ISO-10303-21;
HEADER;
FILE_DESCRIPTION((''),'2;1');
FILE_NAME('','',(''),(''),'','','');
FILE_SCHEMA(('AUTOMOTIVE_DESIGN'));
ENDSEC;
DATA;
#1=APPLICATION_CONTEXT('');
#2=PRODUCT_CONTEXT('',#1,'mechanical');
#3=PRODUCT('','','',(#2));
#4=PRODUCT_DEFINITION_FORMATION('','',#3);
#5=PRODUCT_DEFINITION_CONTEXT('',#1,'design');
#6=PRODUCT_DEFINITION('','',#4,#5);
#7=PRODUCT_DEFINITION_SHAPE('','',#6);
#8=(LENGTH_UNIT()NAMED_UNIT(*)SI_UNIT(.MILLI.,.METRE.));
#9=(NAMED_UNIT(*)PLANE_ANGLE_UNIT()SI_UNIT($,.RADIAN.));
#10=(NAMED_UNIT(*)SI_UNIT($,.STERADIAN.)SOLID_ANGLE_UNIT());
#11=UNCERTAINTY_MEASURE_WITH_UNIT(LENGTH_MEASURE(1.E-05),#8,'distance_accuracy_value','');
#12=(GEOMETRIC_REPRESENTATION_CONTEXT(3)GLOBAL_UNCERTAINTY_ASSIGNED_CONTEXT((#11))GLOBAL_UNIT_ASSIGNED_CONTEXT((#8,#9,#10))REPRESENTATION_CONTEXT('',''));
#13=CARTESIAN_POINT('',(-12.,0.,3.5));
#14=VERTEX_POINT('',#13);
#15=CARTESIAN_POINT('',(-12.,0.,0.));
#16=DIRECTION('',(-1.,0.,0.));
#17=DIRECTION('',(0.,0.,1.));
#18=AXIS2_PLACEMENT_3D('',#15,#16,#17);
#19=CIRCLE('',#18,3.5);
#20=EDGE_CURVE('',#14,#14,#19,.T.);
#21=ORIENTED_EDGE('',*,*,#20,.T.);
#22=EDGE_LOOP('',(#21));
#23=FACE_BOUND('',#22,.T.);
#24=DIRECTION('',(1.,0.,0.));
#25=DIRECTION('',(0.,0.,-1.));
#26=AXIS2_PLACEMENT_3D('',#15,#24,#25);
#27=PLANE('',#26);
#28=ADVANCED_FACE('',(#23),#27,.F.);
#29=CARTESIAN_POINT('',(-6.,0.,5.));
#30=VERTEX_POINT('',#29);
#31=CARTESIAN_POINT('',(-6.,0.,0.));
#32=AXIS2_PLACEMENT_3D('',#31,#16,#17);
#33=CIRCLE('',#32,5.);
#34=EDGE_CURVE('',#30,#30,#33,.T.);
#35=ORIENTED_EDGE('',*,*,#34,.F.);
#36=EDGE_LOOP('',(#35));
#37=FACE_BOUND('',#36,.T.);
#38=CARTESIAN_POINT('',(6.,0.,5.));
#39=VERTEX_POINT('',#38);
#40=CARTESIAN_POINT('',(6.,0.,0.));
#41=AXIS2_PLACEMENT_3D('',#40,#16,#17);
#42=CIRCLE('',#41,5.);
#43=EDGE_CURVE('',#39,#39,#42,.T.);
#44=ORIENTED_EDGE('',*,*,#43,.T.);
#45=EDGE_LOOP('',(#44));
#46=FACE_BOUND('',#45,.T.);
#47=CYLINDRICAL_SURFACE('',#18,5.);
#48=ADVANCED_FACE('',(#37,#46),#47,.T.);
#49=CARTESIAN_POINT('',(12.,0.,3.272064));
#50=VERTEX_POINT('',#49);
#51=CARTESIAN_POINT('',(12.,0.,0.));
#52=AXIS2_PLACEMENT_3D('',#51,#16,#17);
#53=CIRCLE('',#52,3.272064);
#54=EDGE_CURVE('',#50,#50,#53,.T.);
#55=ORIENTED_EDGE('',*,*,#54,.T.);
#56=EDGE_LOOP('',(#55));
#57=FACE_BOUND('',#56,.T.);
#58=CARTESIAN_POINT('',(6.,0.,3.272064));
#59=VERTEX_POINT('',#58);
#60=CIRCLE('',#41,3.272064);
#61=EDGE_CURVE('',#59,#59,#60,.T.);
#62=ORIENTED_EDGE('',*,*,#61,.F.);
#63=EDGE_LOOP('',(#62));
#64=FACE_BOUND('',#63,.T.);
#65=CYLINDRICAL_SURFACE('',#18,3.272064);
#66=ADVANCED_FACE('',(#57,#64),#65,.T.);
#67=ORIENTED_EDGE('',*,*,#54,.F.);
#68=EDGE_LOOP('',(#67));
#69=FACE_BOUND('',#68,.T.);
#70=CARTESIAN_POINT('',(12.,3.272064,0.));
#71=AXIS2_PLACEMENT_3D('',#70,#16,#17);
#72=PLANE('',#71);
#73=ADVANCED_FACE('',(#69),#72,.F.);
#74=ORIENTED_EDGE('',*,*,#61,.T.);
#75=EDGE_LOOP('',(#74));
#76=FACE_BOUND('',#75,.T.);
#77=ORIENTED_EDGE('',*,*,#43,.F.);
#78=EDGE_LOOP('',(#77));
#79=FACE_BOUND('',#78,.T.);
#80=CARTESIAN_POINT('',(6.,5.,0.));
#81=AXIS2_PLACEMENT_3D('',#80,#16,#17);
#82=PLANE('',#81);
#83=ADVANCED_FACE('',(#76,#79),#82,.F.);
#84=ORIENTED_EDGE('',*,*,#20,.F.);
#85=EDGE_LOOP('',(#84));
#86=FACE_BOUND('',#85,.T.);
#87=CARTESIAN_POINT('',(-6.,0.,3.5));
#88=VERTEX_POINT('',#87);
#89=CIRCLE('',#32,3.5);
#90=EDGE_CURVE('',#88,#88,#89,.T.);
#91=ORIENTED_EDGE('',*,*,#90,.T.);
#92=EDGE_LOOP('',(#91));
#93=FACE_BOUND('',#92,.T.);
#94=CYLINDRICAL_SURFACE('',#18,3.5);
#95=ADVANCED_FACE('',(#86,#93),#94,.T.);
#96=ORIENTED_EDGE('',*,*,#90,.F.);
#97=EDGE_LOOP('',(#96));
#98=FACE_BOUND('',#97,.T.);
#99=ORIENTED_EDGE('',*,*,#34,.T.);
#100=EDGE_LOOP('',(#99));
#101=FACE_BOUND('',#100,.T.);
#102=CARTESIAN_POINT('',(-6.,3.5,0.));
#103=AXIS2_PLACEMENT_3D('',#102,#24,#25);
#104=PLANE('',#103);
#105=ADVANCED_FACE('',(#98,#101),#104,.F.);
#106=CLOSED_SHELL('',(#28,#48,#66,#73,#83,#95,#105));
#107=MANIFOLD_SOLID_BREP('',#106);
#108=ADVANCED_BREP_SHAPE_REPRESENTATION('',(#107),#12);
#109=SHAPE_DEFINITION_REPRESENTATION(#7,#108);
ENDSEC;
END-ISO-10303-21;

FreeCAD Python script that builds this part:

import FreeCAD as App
import Part
import Sketcher


def add_polygon(sketch, points):
    """Adds a closed chain of lines whose ends are joined by coincident constraints."""
    first, n = sketch.GeometryCount, len(points)
    for a, b in zip(points, points[1:] + points[:1]):
        sketch.addGeometry(Part.LineSegment(App.Vector(*a, 0), App.Vector(*b, 0)), False)
    for i in range(n):
        sketch.addConstraint(Sketcher.Constraint("Coincident", first + i, 2, first + (i + 1) % n, 1))

doc = App.newDocument("Part")
body = doc.addObject("PartDesign::Body", "Body")

# Sketch on XY plane
sketch1 = doc.addObject("Sketcher::SketchObject", "Sketch")
body.addObject(sketch1)
sketch1.AttachmentSupport = (doc.XY_Plane, [""])
sketch1.MapMode = "FlatFace"
add_polygon(sketch1, [(-12, 0), (12, 0), (12, 3.3), (6, 3.3), (6, 5), (-6, 5), (-6, 3.5), (-12, 3.5)])  # lines 0-7
sketch1.addConstraint(Sketcher.Constraint("Horizontal", 0))
sketch1.addConstraint(Sketcher.Constraint("Vertical", 1))
sketch1.addConstraint(Sketcher.Constraint("Horizontal", 2))
sketch1.addConstraint(Sketcher.Constraint("Vertical", 3))
sketch1.addConstraint(Sketcher.Constraint("Horizontal", 4))
sketch1.addConstraint(Sketcher.Constraint("Vertical", 5))
sketch1.addConstraint(Sketcher.Constraint("Horizontal", 6))
sketch1.addConstraint(Sketcher.Constraint("Vertical", 7))
sketch1.addConstraint(Sketcher.Constraint("Symmetric", 0, 2, 7, 2, -1, 1))
sketch1.addConstraint(Sketcher.Constraint("Equal", 2, 6))
sketch1.addConstraint(Sketcher.Constraint("DistanceX", 0, 1, 0, 2, 24.0))
sketch1.addConstraint(Sketcher.Constraint("DistanceX", 2, 2, 2, 1, 6.0))
sketch1.addConstraint(Sketcher.Constraint("DistanceY", 5, 2, 5, 1, 1.5))
sketch1.addConstraint(Sketcher.Constraint("DistanceY", 7, 2, 7, 1, 3.5))
sketch1.addConstraint(Sketcher.Constraint("DistanceY", 1, 1, 1, 2, 3.272064))
revolution = doc.addObject("PartDesign::Revolution", "Revolution")
body.addObject(revolution)
revolution.Profile = sketch1
revolution.ReferenceAxis = (sketch1, ["H_Axis"])
revolution.Angle = 360

doc.recompute()
